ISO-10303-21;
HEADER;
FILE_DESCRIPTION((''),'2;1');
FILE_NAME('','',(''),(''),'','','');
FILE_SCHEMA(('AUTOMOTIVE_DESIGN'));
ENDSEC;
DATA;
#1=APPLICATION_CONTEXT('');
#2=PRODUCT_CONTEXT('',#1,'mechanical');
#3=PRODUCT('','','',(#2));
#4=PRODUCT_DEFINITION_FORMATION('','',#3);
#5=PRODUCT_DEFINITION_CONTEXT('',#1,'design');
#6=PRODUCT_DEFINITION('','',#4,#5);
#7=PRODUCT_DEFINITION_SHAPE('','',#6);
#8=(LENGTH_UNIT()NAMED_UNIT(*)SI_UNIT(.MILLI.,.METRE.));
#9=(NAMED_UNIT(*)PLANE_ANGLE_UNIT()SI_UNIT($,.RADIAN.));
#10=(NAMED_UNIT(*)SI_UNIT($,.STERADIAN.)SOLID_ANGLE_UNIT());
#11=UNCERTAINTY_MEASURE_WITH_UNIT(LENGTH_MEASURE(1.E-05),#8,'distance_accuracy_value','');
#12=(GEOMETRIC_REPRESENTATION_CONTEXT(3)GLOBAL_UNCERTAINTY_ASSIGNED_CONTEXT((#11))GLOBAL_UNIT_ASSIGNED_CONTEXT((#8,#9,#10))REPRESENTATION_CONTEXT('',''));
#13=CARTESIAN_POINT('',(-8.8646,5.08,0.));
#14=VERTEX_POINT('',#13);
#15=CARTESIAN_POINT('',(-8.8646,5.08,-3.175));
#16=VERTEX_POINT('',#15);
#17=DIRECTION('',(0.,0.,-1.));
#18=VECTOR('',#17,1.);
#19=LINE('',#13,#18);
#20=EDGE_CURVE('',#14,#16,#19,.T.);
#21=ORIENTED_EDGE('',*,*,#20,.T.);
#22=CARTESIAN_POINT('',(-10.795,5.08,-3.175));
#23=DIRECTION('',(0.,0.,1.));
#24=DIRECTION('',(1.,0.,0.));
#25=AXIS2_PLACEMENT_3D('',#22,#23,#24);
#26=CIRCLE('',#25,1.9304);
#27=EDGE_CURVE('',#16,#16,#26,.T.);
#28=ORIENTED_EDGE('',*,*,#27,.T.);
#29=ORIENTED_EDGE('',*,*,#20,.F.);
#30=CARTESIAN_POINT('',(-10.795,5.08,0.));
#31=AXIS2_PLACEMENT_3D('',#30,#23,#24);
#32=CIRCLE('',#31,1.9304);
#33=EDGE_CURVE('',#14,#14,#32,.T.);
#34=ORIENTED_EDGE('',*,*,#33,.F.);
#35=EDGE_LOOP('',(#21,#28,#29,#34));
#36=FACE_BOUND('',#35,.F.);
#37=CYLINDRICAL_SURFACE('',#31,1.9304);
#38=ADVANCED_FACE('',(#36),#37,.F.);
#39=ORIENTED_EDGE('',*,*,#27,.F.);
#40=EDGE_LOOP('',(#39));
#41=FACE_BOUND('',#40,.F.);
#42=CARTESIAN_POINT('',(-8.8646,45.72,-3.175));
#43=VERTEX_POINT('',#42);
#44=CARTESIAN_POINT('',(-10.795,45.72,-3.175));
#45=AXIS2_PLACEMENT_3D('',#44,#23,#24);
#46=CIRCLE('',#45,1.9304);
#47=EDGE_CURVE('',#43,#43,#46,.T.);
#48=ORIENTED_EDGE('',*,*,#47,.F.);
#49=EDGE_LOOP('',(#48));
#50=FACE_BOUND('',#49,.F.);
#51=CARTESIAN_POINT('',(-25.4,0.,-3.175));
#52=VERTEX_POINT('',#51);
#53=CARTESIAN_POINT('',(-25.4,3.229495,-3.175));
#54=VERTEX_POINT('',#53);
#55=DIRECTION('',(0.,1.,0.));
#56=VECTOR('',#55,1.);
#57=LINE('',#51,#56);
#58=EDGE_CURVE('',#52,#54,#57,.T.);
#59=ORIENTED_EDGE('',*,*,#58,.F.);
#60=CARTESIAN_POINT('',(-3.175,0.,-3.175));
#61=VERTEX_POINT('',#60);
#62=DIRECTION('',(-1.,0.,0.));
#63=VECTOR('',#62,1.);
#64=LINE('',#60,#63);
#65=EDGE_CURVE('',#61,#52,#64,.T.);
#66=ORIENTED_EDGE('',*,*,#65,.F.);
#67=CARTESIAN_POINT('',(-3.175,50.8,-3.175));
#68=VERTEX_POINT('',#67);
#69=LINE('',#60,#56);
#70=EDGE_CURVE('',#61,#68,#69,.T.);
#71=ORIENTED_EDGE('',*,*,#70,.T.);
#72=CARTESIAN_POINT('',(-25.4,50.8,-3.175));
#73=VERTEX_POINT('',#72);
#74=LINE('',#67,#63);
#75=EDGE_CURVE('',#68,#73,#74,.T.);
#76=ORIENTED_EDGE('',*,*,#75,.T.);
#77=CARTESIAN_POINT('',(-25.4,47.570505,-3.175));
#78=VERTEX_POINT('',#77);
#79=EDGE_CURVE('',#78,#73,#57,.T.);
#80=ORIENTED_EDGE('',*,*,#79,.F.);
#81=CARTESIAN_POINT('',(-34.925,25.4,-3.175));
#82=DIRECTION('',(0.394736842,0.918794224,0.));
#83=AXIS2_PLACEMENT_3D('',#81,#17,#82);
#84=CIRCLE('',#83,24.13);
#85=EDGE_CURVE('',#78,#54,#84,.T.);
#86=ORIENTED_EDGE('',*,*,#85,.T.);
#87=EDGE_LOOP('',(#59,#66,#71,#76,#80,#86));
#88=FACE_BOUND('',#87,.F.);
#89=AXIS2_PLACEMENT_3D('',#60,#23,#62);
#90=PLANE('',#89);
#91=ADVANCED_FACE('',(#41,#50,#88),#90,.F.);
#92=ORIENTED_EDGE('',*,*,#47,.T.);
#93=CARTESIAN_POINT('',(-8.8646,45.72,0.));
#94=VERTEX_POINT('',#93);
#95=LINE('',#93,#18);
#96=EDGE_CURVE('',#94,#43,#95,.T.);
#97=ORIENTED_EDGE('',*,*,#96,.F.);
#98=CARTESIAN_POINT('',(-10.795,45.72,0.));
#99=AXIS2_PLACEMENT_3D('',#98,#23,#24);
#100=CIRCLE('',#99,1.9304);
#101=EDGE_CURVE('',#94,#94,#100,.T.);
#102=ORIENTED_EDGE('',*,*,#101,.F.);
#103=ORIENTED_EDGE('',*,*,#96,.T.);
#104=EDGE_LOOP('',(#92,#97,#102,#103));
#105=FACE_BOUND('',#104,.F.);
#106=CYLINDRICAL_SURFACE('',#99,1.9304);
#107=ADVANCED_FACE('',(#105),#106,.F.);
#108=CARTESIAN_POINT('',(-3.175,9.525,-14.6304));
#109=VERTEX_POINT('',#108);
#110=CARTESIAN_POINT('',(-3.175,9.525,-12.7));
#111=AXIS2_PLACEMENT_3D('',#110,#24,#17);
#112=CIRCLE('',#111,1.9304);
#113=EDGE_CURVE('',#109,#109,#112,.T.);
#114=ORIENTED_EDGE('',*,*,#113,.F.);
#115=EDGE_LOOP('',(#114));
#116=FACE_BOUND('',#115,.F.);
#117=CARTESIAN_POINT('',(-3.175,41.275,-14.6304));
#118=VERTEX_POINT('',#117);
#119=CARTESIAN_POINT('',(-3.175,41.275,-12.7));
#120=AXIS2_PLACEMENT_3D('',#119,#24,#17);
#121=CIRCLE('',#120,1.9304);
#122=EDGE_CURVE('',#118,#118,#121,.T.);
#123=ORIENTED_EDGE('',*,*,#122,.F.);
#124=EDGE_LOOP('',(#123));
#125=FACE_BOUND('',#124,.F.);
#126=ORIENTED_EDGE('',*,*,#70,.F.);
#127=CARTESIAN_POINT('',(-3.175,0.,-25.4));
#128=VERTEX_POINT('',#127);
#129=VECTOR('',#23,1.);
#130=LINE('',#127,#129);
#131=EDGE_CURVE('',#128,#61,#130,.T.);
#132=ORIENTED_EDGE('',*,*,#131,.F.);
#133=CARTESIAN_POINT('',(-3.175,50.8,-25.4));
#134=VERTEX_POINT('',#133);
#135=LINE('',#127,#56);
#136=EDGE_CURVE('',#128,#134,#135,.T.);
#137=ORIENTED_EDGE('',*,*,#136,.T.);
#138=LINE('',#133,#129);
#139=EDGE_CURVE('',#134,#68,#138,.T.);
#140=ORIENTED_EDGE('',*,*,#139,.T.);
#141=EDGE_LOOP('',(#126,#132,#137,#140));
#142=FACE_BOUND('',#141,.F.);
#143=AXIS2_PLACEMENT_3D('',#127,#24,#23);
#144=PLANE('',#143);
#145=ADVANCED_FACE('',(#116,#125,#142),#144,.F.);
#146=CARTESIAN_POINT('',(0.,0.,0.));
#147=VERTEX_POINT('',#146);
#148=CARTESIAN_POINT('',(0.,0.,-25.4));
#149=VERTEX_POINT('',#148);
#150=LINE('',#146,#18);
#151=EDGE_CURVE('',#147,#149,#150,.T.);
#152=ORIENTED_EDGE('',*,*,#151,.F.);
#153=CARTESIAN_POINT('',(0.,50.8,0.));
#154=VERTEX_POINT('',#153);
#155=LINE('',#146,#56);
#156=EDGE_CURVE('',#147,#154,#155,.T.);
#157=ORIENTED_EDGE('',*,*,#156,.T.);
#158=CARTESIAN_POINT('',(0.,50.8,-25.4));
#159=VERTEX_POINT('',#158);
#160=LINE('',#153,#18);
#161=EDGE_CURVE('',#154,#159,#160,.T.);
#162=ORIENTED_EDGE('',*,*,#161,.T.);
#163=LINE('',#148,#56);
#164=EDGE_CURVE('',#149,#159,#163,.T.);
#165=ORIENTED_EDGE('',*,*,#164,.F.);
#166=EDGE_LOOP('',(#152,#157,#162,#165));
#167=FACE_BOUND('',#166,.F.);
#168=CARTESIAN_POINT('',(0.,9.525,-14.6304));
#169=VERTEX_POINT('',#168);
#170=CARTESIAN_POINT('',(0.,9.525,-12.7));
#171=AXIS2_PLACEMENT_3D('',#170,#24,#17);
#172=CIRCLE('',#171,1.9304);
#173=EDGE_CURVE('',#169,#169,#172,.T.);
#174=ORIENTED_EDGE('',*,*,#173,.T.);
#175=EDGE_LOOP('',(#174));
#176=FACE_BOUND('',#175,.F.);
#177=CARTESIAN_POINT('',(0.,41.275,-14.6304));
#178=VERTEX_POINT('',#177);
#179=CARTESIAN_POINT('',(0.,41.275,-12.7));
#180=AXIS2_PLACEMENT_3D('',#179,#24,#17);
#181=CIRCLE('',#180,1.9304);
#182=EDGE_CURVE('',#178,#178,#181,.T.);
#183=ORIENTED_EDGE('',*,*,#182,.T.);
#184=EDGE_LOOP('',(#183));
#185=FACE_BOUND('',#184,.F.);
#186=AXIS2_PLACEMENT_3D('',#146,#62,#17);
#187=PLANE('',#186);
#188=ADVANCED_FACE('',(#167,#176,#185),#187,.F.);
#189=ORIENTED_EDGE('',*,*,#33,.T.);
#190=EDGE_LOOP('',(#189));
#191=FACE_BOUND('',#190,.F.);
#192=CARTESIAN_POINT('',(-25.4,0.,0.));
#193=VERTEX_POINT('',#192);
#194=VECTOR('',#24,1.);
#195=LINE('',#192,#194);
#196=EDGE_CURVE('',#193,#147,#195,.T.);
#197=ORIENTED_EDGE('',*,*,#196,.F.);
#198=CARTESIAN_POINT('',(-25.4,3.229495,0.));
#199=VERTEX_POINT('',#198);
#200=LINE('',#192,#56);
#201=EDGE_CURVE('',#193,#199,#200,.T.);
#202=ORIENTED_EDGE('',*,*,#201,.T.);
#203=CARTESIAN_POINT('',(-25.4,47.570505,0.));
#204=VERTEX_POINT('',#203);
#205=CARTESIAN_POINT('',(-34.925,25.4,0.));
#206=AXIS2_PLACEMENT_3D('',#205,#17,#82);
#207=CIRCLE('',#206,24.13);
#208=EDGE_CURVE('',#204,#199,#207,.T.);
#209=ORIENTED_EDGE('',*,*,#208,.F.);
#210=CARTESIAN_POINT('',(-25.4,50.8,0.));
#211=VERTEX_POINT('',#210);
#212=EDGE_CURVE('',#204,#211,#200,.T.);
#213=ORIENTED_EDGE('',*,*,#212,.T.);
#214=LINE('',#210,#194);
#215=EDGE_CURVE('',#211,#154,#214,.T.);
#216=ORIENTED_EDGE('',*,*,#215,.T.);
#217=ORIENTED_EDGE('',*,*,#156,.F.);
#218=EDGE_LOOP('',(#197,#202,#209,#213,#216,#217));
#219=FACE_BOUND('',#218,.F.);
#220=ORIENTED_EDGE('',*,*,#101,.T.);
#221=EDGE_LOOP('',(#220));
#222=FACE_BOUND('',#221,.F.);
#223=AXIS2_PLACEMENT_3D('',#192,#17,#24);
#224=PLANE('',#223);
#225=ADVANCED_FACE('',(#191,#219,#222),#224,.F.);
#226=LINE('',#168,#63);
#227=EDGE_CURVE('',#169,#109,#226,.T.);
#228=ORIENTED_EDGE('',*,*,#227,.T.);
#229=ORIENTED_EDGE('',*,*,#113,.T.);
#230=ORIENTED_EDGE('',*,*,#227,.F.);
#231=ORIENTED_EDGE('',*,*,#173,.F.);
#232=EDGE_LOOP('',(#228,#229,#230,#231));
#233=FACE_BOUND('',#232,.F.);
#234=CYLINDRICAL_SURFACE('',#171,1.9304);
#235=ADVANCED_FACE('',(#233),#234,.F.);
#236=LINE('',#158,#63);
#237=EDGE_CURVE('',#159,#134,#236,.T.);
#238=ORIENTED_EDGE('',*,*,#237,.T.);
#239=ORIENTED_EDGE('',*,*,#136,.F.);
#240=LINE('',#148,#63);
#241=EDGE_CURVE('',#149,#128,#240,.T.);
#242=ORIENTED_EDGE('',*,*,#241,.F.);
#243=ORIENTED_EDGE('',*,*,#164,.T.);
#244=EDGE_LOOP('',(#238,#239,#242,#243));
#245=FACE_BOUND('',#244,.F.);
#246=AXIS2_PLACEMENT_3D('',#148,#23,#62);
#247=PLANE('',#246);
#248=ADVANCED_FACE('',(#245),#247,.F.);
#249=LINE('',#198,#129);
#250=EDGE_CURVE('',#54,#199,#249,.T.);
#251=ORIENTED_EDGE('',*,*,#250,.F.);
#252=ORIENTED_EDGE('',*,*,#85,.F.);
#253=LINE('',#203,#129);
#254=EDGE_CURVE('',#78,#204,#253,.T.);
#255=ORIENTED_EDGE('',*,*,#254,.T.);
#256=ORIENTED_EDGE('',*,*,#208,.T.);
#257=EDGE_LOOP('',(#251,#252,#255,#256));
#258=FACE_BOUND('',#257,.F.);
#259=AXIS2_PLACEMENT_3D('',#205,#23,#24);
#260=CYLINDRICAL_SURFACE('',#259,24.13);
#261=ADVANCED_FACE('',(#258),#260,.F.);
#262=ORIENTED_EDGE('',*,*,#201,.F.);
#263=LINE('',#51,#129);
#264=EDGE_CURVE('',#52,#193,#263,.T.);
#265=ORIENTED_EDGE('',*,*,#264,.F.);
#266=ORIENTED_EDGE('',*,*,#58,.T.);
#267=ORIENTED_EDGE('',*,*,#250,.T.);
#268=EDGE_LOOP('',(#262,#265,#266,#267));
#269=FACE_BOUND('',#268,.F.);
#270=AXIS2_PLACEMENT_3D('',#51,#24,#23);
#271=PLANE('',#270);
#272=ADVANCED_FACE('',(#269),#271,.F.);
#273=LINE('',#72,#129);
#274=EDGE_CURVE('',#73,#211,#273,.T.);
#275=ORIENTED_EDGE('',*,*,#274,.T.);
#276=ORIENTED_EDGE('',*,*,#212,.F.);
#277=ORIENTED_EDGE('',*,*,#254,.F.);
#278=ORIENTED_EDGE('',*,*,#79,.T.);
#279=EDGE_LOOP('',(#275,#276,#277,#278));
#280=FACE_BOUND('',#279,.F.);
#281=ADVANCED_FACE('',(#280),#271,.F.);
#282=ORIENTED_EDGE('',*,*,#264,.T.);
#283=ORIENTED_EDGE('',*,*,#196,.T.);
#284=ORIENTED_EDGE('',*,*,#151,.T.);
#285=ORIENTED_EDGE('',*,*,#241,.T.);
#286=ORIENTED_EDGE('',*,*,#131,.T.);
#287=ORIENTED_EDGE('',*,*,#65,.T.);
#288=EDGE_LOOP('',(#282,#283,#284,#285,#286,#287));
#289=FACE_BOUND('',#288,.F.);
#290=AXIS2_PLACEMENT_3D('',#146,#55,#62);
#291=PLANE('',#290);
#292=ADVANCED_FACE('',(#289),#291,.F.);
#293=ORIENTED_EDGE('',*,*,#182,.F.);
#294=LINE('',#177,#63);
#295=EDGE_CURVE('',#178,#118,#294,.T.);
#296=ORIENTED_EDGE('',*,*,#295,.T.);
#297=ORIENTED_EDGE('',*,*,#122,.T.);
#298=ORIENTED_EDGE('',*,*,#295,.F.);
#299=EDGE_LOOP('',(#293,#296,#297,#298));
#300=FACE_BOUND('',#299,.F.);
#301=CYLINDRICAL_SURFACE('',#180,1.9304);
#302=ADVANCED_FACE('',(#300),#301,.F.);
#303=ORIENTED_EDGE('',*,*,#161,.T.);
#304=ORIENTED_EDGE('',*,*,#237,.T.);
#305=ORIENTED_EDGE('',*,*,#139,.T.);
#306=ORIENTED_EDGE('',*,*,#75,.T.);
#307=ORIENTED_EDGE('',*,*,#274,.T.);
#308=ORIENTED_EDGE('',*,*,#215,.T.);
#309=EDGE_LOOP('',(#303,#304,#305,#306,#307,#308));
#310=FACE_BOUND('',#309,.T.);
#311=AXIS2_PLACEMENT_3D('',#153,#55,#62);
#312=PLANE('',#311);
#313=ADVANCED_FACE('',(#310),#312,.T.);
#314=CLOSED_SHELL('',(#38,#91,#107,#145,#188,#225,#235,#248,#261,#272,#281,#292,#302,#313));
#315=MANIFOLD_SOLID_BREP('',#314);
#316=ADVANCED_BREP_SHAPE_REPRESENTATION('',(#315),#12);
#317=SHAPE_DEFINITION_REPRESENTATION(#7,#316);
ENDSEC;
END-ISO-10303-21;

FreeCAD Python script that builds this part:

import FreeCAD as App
import Part
import Sketcher
Q = App.Units.Quantity

doc = App.newDocument("Part")
body = doc.addObject("PartDesign::Body", "Body")

# Sketch on XZ plane
sketch1 = body.newObject("Sketcher::SketchObject", "Sketch")
sketch1.AttachmentSupport = (doc.getObject("XZ_Plane"), [""])
sketch1.MapMode = "FlatFace"
sketch1.addGeometry(Part.LineSegment(App.Vector(-25.4, 0, 0), App.Vector(0, 0, 0)), False)
sketch1.addGeometry(Part.LineSegment(App.Vector(0, 0, 0), App.Vector(0, -25.4, 0)), False)
sketch1.addGeometry(Part.LineSegment(App.Vector(0, -25.4, 0), App.Vector(-3.2, -25.4, 0)), False)
sketch1.addGeometry(Part.LineSegment(App.Vector(-3.2, -25.4, 0), App.Vector(-3.2, -3.2, 0)), False)
sketch1.addGeometry(Part.LineSegment(App.Vector(-3.2, -3.2, 0), App.Vector(-25.4, -3.2, 0)), False)
sketch1.addGeometry(Part.LineSegment(App.Vector(-25.4, -3.2, 0), App.Vector(-25.4, 0, 0)), False)
sketch1.addConstraint(Sketcher.Constraint("Coincident", 0, 2, 1, 1))
sketch1.addConstraint(Sketcher.Constraint("Coincident", 1, 2, 2, 1))
sketch1.addConstraint(Sketcher.Constraint("Coincident", 2, 2, 3, 1))
sketch1.addConstraint(Sketcher.Constraint("Coincident", 3, 2, 4, 1))
sketch1.addConstraint(Sketcher.Constraint("Coincident", 4, 2, 5, 1))
sketch1.addConstraint(Sketcher.Constraint("Coincident", 5, 2, 0, 1))
sketch1.addConstraint(Sketcher.Constraint("Horizontal", 0))
sketch1.addConstraint(Sketcher.Constraint("Vertical", 1))
sketch1.addConstraint(Sketcher.Constraint("Horizontal", 2))
sketch1.addConstraint(Sketcher.Constraint("Vertical", 3))
sketch1.addConstraint(Sketcher.Constraint("Horizontal", 4))
sketch1.addConstraint(Sketcher.Constraint("Vertical", 5))
sketch1.addConstraint(Sketcher.Constraint("Coincident", 0, 2, -1, 1))
sketch1.addConstraint(Sketcher.Constraint("Equal", 0, 1))
sketch1.addConstraint(Sketcher.Constraint("Equal", 4, 3))
sketch1.addConstraint(Sketcher.Constraint("DistanceX", 0, 1, 0, 2, Q("1 in")))
sketch1.addConstraint(Sketcher.Constraint("DistanceX", 2, 2, 2, 1, Q("0.125 in")))
pad1 = body.newObject("PartDesign::Pad", "Pad")
pad1.Profile = sketch1
pad1.Length = Q("2 in")
pad1.Reversed = True

# Sketch on XY plane
sketch2 = body.newObject("Sketcher::SketchObject", "Sketch001")
sketch2.AttachmentSupport = (doc.getObject("XY_Plane"), [""])
sketch2.MapMode = "FlatFace"
sketch2.addGeometry(Part.Circle(App.Vector(-10.8, 45.7, 0), App.Vector(0, 0, 1), 1.9), False)
sketch2.addGeometry(Part.Circle(App.Vector(-10.8, 5.1, 0), App.Vector(0, 0, 1), 1.9), False)
sketch2.addGeometry(Part.Circle(App.Vector(-34.9, 25.4, 0), App.Vector(0, 0, 1), 24.1), False)
sketch2.addConstraint(Sketcher.Constraint("Equal", 0, 1))
sketch2.addConstraint(Sketcher.Constraint("Vertical", 0, 3, 1, 3))
sketch2.addConstraint(Sketcher.Constraint("Diameter", 0, Q("0.152 in")))
sketch2.addConstraint(Sketcher.Constraint("Diameter", 2, Q("1.9 in")))
sketch2.addConstraint(Sketcher.Constraint("DistanceY", -1, 1, 2, 3, Q("1 in")))
sketch2.addConstraint(Sketcher.Constraint("DistanceY", -1, 1, 0, 3, Q("1.8 in")))
sketch2.addConstraint(Sketcher.Constraint("DistanceY", -1, 1, 1, 3, Q("0.2 in")))
sketch2.addConstraint(Sketcher.Constraint("DistanceX", 2, 3, 0, 3, Q("0.95 in")))
sketch2.addConstraint(Sketcher.Constraint("DistanceX", 0, 3, -1, 1, Q("0.425 in")))
pocket1 = body.newObject("PartDesign::Pocket", "Pocket")
pocket1.Profile = sketch2
pocket1.Length = Q("2.5 in")

# Sketch on YZ plane
sketch3 = body.newObject("Sketcher::SketchObject", "Sketch002")
sketch3.AttachmentSupport = (doc.getObject("YZ_Plane"), [""])
sketch3.MapMode = "FlatFace"
sketch3.addGeometry(Part.Circle(App.Vector(9.5, -12.7, 0), App.Vector(0, 0, 1), 1.9), False)
sketch3.addGeometry(Part.Circle(App.Vector(41.3, -12.7, 0), App.Vector(0, 0, 1), 1.9), False)
sketch3.addConstraint(Sketcher.Constraint("Equal", 0, 1))
sketch3.addConstraint(Sketcher.Constraint("Horizontal", 0, 3, 1, 3))
sketch3.addConstraint(Sketcher.Constraint("Diameter", 0, Q("0.152 in")))
sketch3.addConstraint(Sketcher.Constraint("DistanceY", 0, 3, -1, 1, Q("0.5 in")))
sketch3.addConstraint(Sketcher.Constraint("DistanceX", -1, 1, 0, 3, Q("0.375 in")))
sketch3.addConstraint(Sketcher.Constraint("DistanceX", 0, 3, 1, 3, Q("1.25 in")))
pocket2 = body.newObject("PartDesign::Pocket", "Pocket001")
pocket2.Profile = sketch3
pocket2.Length = Q("2.5 in")

doc.recompute()
